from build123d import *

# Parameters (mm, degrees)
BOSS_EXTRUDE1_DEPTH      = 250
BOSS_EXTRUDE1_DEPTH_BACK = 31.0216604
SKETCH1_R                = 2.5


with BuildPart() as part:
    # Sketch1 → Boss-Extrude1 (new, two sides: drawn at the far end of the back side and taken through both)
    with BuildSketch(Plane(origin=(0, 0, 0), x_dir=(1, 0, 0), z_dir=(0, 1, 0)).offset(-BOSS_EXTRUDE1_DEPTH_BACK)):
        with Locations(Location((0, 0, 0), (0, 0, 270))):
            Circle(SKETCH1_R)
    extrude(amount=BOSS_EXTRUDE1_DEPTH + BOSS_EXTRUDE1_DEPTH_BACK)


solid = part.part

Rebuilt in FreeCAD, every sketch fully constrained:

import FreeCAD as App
import Part
import Sketcher

V = App.Vector

doc = App.newDocument("Part")
body = doc.addObject("PartDesign::Body", "Body")

# Sketch on XZ plane
sketch1 = body.newObject("Sketcher::SketchObject", "Sketch")
sketch1.AttachmentSupport = (doc.getObject("XZ_Plane"), [""])
sketch1.MapMode = "FlatFace"
sketch1.addGeometry(Part.Circle(V(0, 0, 0), V(0, 0, 1), 2.5), False)
sketch1.addConstraint(Sketcher.Constraint("Coincident", 0, 3, -1, 1))
sketch1.addConstraint(Sketcher.Constraint("Diameter", 0, 5.0))
pad1 = body.newObject("PartDesign::Pad", "Pad")
pad1.Profile = sketch1
pad1.Type = "TwoLengths"
pad1.Length = 250
pad1.Length2 = 31.02166
pad1.Reversed = True

doc.recompute()
